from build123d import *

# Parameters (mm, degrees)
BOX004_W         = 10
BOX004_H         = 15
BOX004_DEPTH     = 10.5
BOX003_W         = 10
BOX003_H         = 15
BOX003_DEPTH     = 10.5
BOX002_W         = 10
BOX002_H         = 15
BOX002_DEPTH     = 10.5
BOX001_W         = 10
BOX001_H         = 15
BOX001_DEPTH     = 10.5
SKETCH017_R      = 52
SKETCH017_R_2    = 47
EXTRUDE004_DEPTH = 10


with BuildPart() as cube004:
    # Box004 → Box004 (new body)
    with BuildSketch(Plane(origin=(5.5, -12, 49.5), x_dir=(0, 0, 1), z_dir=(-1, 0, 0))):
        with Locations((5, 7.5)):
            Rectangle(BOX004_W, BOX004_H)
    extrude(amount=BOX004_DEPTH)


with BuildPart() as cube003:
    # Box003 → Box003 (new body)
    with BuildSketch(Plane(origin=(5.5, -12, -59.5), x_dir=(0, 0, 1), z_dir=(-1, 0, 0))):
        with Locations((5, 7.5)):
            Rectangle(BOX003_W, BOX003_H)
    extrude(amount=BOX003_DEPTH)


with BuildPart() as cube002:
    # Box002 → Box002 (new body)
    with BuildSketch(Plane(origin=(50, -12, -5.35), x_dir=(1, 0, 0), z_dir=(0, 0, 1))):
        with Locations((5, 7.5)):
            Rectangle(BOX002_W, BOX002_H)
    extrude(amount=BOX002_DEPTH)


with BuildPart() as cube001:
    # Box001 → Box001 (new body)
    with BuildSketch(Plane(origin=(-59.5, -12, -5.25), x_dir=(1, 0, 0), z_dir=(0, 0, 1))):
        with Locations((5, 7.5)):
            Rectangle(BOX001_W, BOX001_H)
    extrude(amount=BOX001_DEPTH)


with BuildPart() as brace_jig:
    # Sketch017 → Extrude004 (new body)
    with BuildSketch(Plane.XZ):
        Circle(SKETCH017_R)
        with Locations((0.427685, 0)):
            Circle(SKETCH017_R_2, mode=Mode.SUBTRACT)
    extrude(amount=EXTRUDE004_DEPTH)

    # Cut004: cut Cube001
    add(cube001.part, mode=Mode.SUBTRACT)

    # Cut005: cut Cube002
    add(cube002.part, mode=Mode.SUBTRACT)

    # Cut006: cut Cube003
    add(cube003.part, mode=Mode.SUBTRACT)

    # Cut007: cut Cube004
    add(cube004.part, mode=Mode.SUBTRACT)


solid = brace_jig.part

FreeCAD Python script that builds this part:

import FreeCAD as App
import Part
import Sketcher

V = App.Vector
Q = App.Units.Quantity

doc = App.newDocument("Part")
body = doc.addObject("PartDesign::Body", "Body")

sketch1 = body.newObject("Sketcher::SketchObject", "Sketch")
sketch1.AttachmentSupport = (doc.getObject("YZ_Plane"), [""])
sketch1.MapMode = "FlatFace"
sketch1.AttachmentOffset = App.Placement(V(0, 0, 5.5), App.Rotation())
sketch1.addGeometry(Part.LineSegment(V(3, 50, 0), V(-12, 50, 0)), False)
sketch1.addGeometry(Part.LineSegment(V(-12, 50, 0), V(-12, 60, 0)), False)
sketch1.addGeometry(Part.LineSegment(V(-12, 60, 0), V(3, 60, 0)), False)
sketch1.addGeometry(Part.LineSegment(V(3, 60, 0), V(3, 50, 0)), False)
sketch1.addConstraint(Sketcher.Constraint("Coincident", 0, 2, 1, 1))
sketch1.addConstraint(Sketcher.Constraint("Coincident", 1, 2, 2, 1))
sketch1.addConstraint(Sketcher.Constraint("Coincident", 2, 2, 3, 1))
sketch1.addConstraint(Sketcher.Constraint("Coincident", 3, 2, 0, 1))
sketch1.addConstraint(Sketcher.Constraint("Horizontal", 0))
sketch1.addConstraint(Sketcher.Constraint("Vertical", 1))
sketch1.addConstraint(Sketcher.Constraint("Horizontal", 2))
sketch1.addConstraint(Sketcher.Constraint("Vertical", 3))
sketch1.addConstraint(Sketcher.Constraint("DistanceX", 0, 2, 0, 1, Q("15 mm")))
sketch1.addConstraint(Sketcher.Constraint("DistanceY", 1, 1, 1, 2, Q("10 mm")))
sketch1.addConstraint(Sketcher.Constraint("DistanceX", 0, 2, -1, 1, Q("12 mm")))
sketch1.addConstraint(Sketcher.Constraint("DistanceY", -1, 1, 0, 2, Q("49.5 mm")))
pad1 = body.newObject("PartDesign::Pad", "Pad")
pad1.Profile = sketch1
pad1.Length = 10.5
pad1.Reversed = True
body2 = doc.addObject("PartDesign::Body", "Body001")

sketch2 = body2.newObject("Sketcher::SketchObject", "Sketch001")
sketch2.AttachmentSupport = (doc.getObject("YZ_Plane001"), [""])
sketch2.MapMode = "FlatFace"
sketch2.AttachmentOffset = App.Placement(V(0, 0, 5.5), App.Rotation())
sketch2.addGeometry(Part.LineSegment(V(3, -60, 0), V(-12, -60, 0)), False)
sketch2.addGeometry(Part.LineSegment(V(-12, -60, 0), V(-12, -50, 0)), False)
sketch2.addGeometry(Part.LineSegment(V(-12, -50, 0), V(3, -50, 0)), False)
sketch2.addGeometry(Part.LineSegment(V(3, -50, 0), V(3, -60, 0)), False)
sketch2.addConstraint(Sketcher.Constraint("Coincident", 0, 2, 1, 1))
sketch2.addConstraint(Sketcher.Constraint("Coincident", 1, 2, 2, 1))
sketch2.addConstraint(Sketcher.Constraint("Coincident", 2, 2, 3, 1))
sketch2.addConstraint(Sketcher.Constraint("Coincident", 3, 2, 0, 1))
sketch2.addConstraint(Sketcher.Constraint("Horizontal", 0))
sketch2.addConstraint(Sketcher.Constraint("Vertical", 1))
sketch2.addConstraint(Sketcher.Constraint("Horizontal", 2))
sketch2.addConstraint(Sketcher.Constraint("Vertical", 3))
sketch2.addConstraint(Sketcher.Constraint("DistanceX", 0, 2, 0, 1, Q("15 mm")))
sketch2.addConstraint(Sketcher.Constraint("DistanceY", 1, 1, 1, 2, Q("10 mm")))
sketch2.addConstraint(Sketcher.Constraint("DistanceX", 0, 2, -1, 1, Q("12 mm")))
sketch2.addConstraint(Sketcher.Constraint("DistanceY", 0, 2, -1, 1, Q("59.5 mm")))
pad2 = body2.newObject("PartDesign::Pad", "Pad001")
pad2.Profile = sketch2
pad2.Length = 10.5
pad2.Reversed = True
body3 = doc.addObject("PartDesign::Body", "Body002")

sketch3 = body3.newObject("Sketcher::SketchObject", "Sketch002")
sketch3.AttachmentSupport = (doc.getObject("XY_Plane002"), [""])
sketch3.MapMode = "FlatFace"
sketch3.AttachmentOffset = App.Placement(V(0, 0, -5.35), App.Rotation())
sketch3.addGeometry(Part.LineSegment(V(50, 3, 0), V(50, -12, 0)), False)
sketch3.addGeometry(Part.LineSegment(V(50, -12, 0), V(60, -12, 0)), False)
sketch3.addGeometry(Part.LineSegment(V(60, -12, 0), V(60, 3, 0)), False)
sketch3.addGeometry(Part.LineSegment(V(60, 3, 0), V(50, 3, 0)), False)
sketch3.addConstraint(Sketcher.Constraint("Coincident", 0, 2, 1, 1))
sketch3.addConstraint(Sketcher.Constraint("Coincident", 1, 2, 2, 1))
sketch3.addConstraint(Sketcher.Constraint("Coincident", 2, 2, 3, 1))
sketch3.addConstraint(Sketcher.Constraint("Coincident", 3, 2, 0, 1))
sketch3.addConstraint(Sketcher.Constraint("Vertical", 0))
sketch3.addConstraint(Sketcher.Constraint("Horizontal", 1))
sketch3.addConstraint(Sketcher.Constraint("Vertical", 2))
sketch3.addConstraint(Sketcher.Constraint("Horizontal", 3))
sketch3.addConstraint(Sketcher.Constraint("DistanceX", 1, 1, 1, 2, Q("10 mm")))
sketch3.addConstraint(Sketcher.Constraint("DistanceY", 0, 2, 0, 1, Q("15 mm")))
sketch3.addConstraint(Sketcher.Constraint("DistanceX", -1, 1, 0, 2, Q("50 mm")))
sketch3.addConstraint(Sketcher.Constraint("DistanceY", 0, 2, -1, 1, Q("12 mm")))
pad3 = body3.newObject("PartDesign::Pad", "Pad002")
pad3.Profile = sketch3
pad3.Length = 10.5
body4 = doc.addObject("PartDesign::Body", "Body003")

sketch4 = body4.newObject("Sketcher::SketchObject", "Sketch003")
sketch4.AttachmentSupport = (doc.getObject("XY_Plane003"), [""])
sketch4.MapMode = "FlatFace"
sketch4.AttachmentOffset = App.Placement(V(0, 0, -5.25), App.Rotation())
sketch4.addGeometry(Part.LineSegment(V(-60, 3, 0), V(-60, -12, 0)), False)
sketch4.addGeometry(Part.LineSegment(V(-60, -12, 0), V(-50, -12, 0)), False)
sketch4.addGeometry(Part.LineSegment(V(-50, -12, 0), V(-50, 3, 0)), False)
sketch4.addGeometry(Part.LineSegment(V(-50, 3, 0), V(-60, 3, 0)), False)
sketch4.addConstraint(Sketcher.Constraint("Coincident", 0, 2, 1, 1))
sketch4.addConstraint(Sketcher.Constraint("Coincident", 1, 2, 2, 1))
sketch4.addConstraint(Sketcher.Constraint("Coincident", 2, 2, 3, 1))
sketch4.addConstraint(Sketcher.Constraint("Coincident", 3, 2, 0, 1))
sketch4.addConstraint(Sketcher.Constraint("Vertical", 0))
sketch4.addConstraint(Sketcher.Constraint("Horizontal", 1))
sketch4.addConstraint(Sketcher.Constraint("Vertical", 2))
sketch4.addConstraint(Sketcher.Constraint("Horizontal", 3))
sketch4.addConstraint(Sketcher.Constraint("DistanceX", 1, 1, 1, 2, Q("10 mm")))
sketch4.addConstraint(Sketcher.Constraint("DistanceY", 0, 2, 0, 1, Q("15 mm")))
sketch4.addConstraint(Sketcher.Constraint("DistanceY", 0, 2, -1, 1, Q("12 mm")))
sketch4.addConstraint(Sketcher.Constraint("DistanceX", 0, 2, -1, 1, Q("59.5 mm")))
pad4 = body4.newObject("PartDesign::Pad", "Pad003")
pad4.Profile = sketch4
pad4.Length = 10.5
body5 = doc.addObject("PartDesign::Body", "Body004")

sketch5 = body5.newObject("Sketcher::SketchObject", "Sketch004")
sketch5.AttachmentSupport = (doc.getObject("XZ_Plane004"), [""])
sketch5.MapMode = "FlatFace"
sketch5.addGeometry(Part.Circle(V(0, 0, 0), V(0, 0, 1), 52), False)
sketch5.addGeometry(Part.Circle(V(0, 0, 0), V(0, 0, 1), 47), False)
sketch5.addConstraint(Sketcher.Constraint("Coincident", 0, 3, -1, 1))
sketch5.addConstraint(Sketcher.Constraint("PointOnObject", 1, 3, -1))
sketch5.addConstraint(Sketcher.Constraint("Diameter", 0, Q("104 mm")))
sketch5.addConstraint(Sketcher.Constraint("Diameter", 1, Q("94 mm")))
sketch5.addConstraint(Sketcher.Constraint("DistanceX", -1, 1, 1, 3, Q("0.427685 mm")))
pad5 = body5.newObject("PartDesign::Pad", "Pad004")
pad5.Profile = sketch5
pad5.Length = 10
doc.recompute()

boolean = body5.newObject("PartDesign::Boolean", "Boolean")
boolean.Type = "Cut"
boolean.addObjects([body4])
doc.recompute()

boolean2 = body5.newObject("PartDesign::Boolean", "Boolean001")
boolean2.Type = "Cut"
boolean2.addObjects([body3])
doc.recompute()

boolean3 = body5.newObject("PartDesign::Boolean", "Boolean002")
boolean3.Type = "Cut"
boolean3.addObjects([body2])
doc.recompute()

boolean4 = body5.newObject("PartDesign::Boolean", "Boolean003")
boolean4.Type = "Cut"
boolean4.addObjects([body])

doc.recompute()
